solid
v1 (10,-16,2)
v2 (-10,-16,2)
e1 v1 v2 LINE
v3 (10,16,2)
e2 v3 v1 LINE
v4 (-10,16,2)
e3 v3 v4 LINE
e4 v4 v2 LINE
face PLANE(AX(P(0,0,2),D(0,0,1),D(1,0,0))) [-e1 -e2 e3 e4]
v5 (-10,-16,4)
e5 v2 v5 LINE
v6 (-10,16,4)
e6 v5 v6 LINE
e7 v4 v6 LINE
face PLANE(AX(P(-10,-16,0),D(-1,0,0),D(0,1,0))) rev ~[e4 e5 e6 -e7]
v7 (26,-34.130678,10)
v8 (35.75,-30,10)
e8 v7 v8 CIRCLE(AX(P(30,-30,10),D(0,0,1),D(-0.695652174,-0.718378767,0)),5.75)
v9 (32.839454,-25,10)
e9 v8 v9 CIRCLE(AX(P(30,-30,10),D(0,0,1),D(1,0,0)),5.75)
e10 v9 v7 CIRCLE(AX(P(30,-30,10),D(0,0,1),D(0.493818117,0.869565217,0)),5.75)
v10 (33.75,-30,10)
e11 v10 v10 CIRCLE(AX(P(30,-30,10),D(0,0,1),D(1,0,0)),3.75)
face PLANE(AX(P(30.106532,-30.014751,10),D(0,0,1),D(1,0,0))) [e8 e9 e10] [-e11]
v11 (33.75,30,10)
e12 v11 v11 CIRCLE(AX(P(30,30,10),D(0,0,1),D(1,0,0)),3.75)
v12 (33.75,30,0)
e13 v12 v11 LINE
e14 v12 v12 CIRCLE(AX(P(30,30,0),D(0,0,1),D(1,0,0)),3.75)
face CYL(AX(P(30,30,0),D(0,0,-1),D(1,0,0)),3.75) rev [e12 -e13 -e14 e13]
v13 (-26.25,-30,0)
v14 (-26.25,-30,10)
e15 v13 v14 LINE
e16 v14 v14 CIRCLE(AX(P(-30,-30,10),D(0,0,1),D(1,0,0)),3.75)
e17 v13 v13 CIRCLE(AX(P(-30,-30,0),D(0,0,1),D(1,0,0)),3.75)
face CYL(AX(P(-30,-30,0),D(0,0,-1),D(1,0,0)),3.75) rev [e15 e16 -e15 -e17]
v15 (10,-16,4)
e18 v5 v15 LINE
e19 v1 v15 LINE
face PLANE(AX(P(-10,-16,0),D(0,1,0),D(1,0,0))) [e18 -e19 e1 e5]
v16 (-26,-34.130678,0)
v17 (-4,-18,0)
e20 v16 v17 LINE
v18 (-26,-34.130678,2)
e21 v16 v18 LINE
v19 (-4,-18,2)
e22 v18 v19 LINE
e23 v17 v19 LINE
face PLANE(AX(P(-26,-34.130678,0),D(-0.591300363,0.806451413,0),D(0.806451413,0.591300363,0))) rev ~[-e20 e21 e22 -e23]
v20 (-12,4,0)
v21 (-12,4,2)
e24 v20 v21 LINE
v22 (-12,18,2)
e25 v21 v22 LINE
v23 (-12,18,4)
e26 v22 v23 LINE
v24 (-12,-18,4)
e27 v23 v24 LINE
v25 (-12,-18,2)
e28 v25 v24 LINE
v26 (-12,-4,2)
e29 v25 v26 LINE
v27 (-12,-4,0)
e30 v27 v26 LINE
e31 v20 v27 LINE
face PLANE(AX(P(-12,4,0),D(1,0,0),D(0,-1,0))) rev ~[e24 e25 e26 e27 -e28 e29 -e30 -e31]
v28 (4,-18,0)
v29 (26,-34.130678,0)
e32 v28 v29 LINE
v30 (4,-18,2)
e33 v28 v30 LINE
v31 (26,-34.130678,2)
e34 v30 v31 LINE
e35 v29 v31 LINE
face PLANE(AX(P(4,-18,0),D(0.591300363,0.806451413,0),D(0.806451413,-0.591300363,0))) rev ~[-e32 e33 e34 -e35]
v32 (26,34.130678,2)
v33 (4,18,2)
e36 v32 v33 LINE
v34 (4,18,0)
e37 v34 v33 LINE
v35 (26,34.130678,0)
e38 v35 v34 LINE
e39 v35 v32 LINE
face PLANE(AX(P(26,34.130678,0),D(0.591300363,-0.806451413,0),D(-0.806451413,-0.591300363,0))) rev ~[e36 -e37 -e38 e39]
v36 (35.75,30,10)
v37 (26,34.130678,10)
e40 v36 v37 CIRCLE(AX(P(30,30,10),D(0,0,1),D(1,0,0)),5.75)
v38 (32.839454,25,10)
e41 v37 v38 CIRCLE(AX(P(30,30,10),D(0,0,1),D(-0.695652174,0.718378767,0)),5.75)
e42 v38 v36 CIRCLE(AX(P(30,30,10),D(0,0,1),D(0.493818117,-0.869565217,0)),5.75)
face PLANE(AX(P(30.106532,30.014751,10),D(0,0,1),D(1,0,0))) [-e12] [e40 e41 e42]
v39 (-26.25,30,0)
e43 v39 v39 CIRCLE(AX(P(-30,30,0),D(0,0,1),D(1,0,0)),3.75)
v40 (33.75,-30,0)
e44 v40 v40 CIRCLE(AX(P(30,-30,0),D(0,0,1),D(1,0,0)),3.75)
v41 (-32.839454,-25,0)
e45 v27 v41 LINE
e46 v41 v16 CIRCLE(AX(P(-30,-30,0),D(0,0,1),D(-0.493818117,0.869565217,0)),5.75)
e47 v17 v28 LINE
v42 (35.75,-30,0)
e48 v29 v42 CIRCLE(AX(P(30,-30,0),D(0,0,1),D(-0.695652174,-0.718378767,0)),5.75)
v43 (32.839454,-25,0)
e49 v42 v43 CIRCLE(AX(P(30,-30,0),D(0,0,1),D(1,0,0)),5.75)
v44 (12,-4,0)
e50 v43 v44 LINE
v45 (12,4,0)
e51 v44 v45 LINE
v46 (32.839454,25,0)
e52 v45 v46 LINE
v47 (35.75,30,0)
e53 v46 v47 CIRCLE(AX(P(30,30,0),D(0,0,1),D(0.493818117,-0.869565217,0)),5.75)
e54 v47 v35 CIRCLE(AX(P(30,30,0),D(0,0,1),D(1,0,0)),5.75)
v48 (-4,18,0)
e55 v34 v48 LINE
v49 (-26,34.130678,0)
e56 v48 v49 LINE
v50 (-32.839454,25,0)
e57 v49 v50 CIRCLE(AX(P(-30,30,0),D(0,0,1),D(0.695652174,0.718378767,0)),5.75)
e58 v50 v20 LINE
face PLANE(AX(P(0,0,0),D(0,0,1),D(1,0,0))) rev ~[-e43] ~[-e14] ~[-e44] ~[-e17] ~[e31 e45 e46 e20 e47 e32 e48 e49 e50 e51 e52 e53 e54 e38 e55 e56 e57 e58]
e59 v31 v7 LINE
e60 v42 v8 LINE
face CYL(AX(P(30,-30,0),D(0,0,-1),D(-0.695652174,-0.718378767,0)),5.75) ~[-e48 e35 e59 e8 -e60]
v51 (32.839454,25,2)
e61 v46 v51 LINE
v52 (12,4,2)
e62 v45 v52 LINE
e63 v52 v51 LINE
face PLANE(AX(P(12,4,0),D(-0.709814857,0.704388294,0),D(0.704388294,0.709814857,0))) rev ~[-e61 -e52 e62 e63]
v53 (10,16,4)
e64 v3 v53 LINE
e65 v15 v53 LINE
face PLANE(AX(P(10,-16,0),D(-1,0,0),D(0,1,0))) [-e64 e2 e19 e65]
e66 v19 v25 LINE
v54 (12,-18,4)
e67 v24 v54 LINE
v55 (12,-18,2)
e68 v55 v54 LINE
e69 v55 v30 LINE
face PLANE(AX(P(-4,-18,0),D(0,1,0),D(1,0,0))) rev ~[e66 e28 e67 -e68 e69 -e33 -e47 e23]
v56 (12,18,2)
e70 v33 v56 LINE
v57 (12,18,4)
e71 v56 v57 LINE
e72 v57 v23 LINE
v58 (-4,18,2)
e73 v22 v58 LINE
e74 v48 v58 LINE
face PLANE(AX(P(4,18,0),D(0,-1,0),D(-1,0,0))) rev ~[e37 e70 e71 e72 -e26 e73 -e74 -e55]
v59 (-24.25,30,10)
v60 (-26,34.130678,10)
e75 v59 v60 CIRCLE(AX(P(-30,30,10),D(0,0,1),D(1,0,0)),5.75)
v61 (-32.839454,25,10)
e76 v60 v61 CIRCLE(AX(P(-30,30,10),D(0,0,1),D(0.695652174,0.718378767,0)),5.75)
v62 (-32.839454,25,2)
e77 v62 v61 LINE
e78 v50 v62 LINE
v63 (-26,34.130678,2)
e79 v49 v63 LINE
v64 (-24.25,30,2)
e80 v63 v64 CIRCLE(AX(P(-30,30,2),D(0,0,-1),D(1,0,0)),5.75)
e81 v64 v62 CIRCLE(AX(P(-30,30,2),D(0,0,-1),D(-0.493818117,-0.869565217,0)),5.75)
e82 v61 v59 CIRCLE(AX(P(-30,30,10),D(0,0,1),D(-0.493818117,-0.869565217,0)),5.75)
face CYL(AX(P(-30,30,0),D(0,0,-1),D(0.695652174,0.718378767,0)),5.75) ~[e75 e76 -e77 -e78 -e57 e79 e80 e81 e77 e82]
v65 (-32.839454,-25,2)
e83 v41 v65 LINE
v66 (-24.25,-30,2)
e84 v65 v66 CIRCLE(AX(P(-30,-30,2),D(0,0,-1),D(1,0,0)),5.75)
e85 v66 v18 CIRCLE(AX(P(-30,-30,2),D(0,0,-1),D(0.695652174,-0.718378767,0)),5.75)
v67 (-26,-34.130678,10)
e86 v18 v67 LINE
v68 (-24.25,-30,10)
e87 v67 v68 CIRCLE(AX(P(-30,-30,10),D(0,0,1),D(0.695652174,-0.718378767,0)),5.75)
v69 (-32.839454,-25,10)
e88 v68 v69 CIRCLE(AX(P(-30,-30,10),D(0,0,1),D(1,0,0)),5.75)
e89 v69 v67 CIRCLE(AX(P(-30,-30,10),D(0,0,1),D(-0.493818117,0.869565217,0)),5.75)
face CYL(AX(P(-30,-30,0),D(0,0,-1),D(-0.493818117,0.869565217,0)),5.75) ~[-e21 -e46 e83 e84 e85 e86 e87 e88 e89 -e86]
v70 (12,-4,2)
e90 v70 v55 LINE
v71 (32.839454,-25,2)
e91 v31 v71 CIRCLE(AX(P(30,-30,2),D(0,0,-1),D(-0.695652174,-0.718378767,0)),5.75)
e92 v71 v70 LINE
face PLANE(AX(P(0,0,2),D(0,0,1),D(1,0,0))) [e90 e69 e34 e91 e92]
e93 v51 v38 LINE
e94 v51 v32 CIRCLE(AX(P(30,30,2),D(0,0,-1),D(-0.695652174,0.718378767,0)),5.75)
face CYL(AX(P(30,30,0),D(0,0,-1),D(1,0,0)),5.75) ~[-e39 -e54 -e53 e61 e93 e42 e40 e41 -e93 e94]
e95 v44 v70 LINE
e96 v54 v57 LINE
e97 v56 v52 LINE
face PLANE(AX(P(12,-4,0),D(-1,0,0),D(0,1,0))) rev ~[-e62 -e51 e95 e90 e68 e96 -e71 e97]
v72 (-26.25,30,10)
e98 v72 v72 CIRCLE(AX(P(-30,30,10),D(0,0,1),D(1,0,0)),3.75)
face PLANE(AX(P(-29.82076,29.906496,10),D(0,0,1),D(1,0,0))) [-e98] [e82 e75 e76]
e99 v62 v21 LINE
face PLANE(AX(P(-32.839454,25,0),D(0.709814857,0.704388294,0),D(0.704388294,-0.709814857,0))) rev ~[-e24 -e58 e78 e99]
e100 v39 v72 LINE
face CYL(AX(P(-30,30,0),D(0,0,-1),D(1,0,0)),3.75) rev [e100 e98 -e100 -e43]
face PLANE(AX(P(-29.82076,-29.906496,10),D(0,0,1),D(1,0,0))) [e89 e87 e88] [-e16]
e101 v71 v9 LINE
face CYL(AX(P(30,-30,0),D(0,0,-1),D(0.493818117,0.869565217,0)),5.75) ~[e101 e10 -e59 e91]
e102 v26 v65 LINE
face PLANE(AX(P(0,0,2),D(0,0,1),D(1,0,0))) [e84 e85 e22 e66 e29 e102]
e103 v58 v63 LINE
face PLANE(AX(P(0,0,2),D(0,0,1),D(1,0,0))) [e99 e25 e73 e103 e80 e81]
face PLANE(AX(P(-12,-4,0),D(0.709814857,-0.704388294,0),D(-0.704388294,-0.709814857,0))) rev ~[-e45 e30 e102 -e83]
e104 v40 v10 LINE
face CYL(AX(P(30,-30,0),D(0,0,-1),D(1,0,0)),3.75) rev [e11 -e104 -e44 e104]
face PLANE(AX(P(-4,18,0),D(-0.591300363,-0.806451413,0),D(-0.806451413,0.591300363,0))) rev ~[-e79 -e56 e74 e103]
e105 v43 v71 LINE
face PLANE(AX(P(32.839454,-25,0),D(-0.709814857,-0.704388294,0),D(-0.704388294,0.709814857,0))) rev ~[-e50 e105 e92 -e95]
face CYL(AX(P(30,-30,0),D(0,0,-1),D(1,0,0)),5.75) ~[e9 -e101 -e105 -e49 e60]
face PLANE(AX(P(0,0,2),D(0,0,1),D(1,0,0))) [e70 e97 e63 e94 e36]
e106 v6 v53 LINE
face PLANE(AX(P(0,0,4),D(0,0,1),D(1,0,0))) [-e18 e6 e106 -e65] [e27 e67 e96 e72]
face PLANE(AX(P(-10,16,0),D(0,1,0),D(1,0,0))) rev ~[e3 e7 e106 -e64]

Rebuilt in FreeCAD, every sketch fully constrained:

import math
import FreeCAD as App
import Part
import Sketcher
Q = App.Units.Quantity

doc = App.newDocument("Part")
body = doc.addObject("PartDesign::Body", "Body")

# Sketch on XY plane
sketch1 = doc.addObject("Sketcher::SketchObject", "Sketch")
body.addObject(sketch1)
sketch1.AttachmentSupport = (doc.XY_Plane, [""])
sketch1.MapMode = "FlatFace"
sketch1.addGeometry([
    Part.LineSegment(App.Vector(4, 18, 0), App.Vector(-4, 18, 0)),  # 0
    Part.LineSegment(App.Vector(-4, 18, 0), App.Vector(-26, 34.1, 0)),  # 1
    Part.ArcOfCircle(Part.Circle(App.Vector(-30, 30, 0), App.Vector(0, 0, 1), 5.8), math.radians(46), math.radians(240)),  # 2
    Part.LineSegment(App.Vector(-32.8, 25, 0), App.Vector(-12, 4, 0)),  # 3
    Part.LineSegment(App.Vector(-12, 4, 0), App.Vector(-12, -4, 0)),  # 4
    Part.LineSegment(App.Vector(-12, -4, 0), App.Vector(-32.8, -25, 0)),  # 5
    Part.ArcOfCircle(Part.Circle(App.Vector(-30, -30, 0), App.Vector(0, 0, 1), 5.8), math.radians(120), math.radians(314)),  # 6
    Part.LineSegment(App.Vector(-26, -34.1, 0), App.Vector(-4, -18, 0)),  # 7
    Part.LineSegment(App.Vector(-4, -18, 0), App.Vector(4, -18, 0)),  # 8
    Part.LineSegment(App.Vector(4, -18, 0), App.Vector(26, -34.1, 0)),  # 9
    Part.ArcOfCircle(Part.Circle(App.Vector(30, -30, 0), App.Vector(0, 0, 1), 5.8), math.radians(60), math.radians(226)),  # 10
    Part.LineSegment(App.Vector(32.8, -25, 0), App.Vector(12, -4, 0)),  # 11
    Part.LineSegment(App.Vector(12, -4, 0), App.Vector(12, 4, 0)),  # 12
    Part.LineSegment(App.Vector(12, 4, 0), App.Vector(32.8, 25, 0)),  # 13
    Part.ArcOfCircle(Part.Circle(App.Vector(30, 30, 0), App.Vector(0, 0, 1), 5.8), math.radians(-60), math.radians(0)),  # 14
    Part.ArcOfCircle(Part.Circle(App.Vector(30, 30, 0), App.Vector(0, 0, 1), 5.8), math.radians(0), math.radians(134)),  # 15
    Part.LineSegment(App.Vector(26, 34.1, 0), App.Vector(4, 18, 0)),  # 16
    Part.Circle(App.Vector(-30, -30, 0), App.Vector(0, 0, 1), 3.8),  # 17
    Part.Circle(App.Vector(-30, 30, 0), App.Vector(0, 0, 1), 3.8),  # 18
    Part.Circle(App.Vector(30, 30, 0), App.Vector(0, 0, 1), 3.8),  # 19
], False)
sketch1.addConstraint([
    Sketcher.Constraint("Coincident", 0, 2, 1, 1),
    Sketcher.Constraint("Coincident", 1, 2, 2, 1),
    Sketcher.Constraint("Coincident", 2, 2, 3, 1),
    Sketcher.Constraint("Coincident", 3, 2, 4, 1),
    Sketcher.Constraint("Coincident", 4, 2, 5, 1),
    Sketcher.Constraint("Coincident", 5, 2, 6, 1),
    Sketcher.Constraint("Coincident", 6, 2, 7, 1),
    Sketcher.Constraint("Coincident", 7, 2, 8, 1),
    Sketcher.Constraint("Coincident", 8, 2, 9, 1),
    Sketcher.Constraint("Coincident", 9, 2, 10, 2),
    Sketcher.Constraint("Coincident", 10, 1, 11, 1),
    Sketcher.Constraint("Coincident", 11, 2, 12, 1),
    Sketcher.Constraint("Coincident", 12, 2, 13, 1),
    Sketcher.Constraint("Coincident", 13, 2, 14, 1),
    Sketcher.Constraint("Tangent", 14, 2, 15, 1),
    Sketcher.Constraint("Coincident", 15, 2, 16, 1),
    Sketcher.Constraint("Coincident", 16, 2, 0, 1),
    Sketcher.Constraint("Horizontal", 0),
    Sketcher.Constraint("Vertical", 4),
    Sketcher.Constraint("Horizontal", 8),
    Sketcher.Constraint("Vertical", 12),
    Sketcher.Constraint("Coincident", 17, 3, 6, 3),
    Sketcher.Constraint("Coincident", 18, 3, 2, 3),
    Sketcher.Constraint("Coincident", 19, 3, 14, 3),
    Sketcher.Constraint("Equal", 2, 6),
    Sketcher.Constraint("Equal", 6, 10),
    Sketcher.Constraint("Equal", 10, 14),
    Sketcher.Constraint("Equal", 14, 15),
    Sketcher.Constraint("Equal", 17, 18),
    Sketcher.Constraint("Equal", 18, 19),
    Sketcher.Constraint("Symmetric", 2, 3, 10, 3, -1, 1),
    Sketcher.Constraint("Symmetric", 6, 3, 14, 3, -1, 1),
    Sketcher.Constraint("Symmetric", 0, 2, 8, 2, -1, 1),
    Sketcher.Constraint("Symmetric", 3, 2, 11, 2, -1, 1),
    Sketcher.Constraint("Symmetric", 6, 3, 10, 3, -2),
    Sketcher.Constraint("Parallel", 1, 9),
    Sketcher.Constraint("Parallel", 3, 11),
    Sketcher.Constraint("Parallel", 5, 13),
    Sketcher.Constraint("Parallel", 7, 16),
    Sketcher.Constraint("Horizontal", 6, 2, 9, 2),
    Sketcher.Constraint("Horizontal", 5, 2, 10, 1),
    Sketcher.Constraint("Horizontal", 4, 2, 11, 2),
    Sketcher.Constraint("Horizontal", 3, 2, 12, 2),
    Sketcher.Constraint("Horizontal", 19, 3, 14, 2),
    Sketcher.Constraint("Horizontal", 1, 2, 15, 2),
    Sketcher.Constraint("Vertical", 0, 2, 7, 2),
    Sketcher.Constraint("Equal", 8, 4),
    Sketcher.Constraint("Diameter", 17, Q("7.5 mm")),
    Sketcher.Constraint("DistanceX", 0, 2, 0, 1, Q("8 mm")),
    Sketcher.Constraint("Radius", 2, Q("5.75 mm")),
    Sketcher.Constraint("DistanceX", 2, 3, -1, 1, Q("30 mm")),
    Sketcher.Constraint("DistanceY", -1, 1, 2, 3, Q("30 mm")),
    Sketcher.Constraint("DistanceY", -1, 1, 0, 2, Q("18 mm")),
    Sketcher.Constraint("DistanceX", 1, 2, -1, 1, Q("26 mm")),
    Sketcher.Constraint("DistanceY", -1, 1, 2, 2, Q("25 mm")),
    Sketcher.Constraint("DistanceX", 3, 2, -1, 1, Q("12 mm")),
])
pad1 = doc.addObject("PartDesign::Pad", "Pad")
body.addObject(pad1)
pad1.Profile = sketch1
pad1.Length = 2

# Sketch on XY plane
sketch2 = doc.addObject("Sketcher::SketchObject", "Sketch001")
body.addObject(sketch2)
sketch2.AttachmentSupport = (doc.XY_Plane, [""])
sketch2.MapMode = "FlatFace"
sketch2.addGeometry([
    Part.ArcOfCircle(Part.Circle(App.Vector(-30, 30, 0), App.Vector(0, 0, 1), 5.8), math.radians(0), math.radians(46)),  # 0
    Part.ArcOfCircle(Part.Circle(App.Vector(-30, 30, 0), App.Vector(0, 0, 1), 5.8), math.radians(46), math.radians(240)),  # 1
    Part.ArcOfCircle(Part.Circle(App.Vector(-30, 30, 0), App.Vector(0, 0, 1), 5.8), math.radians(-120), math.radians(0)),  # 2
    Part.Circle(App.Vector(-30, 30, 0), App.Vector(0, 0, 1), 3.8),  # 3
    Part.ArcOfCircle(Part.Circle(App.Vector(30, 30, 0), App.Vector(0, 0, 1), 5.8), math.radians(0), math.radians(134)),  # 4
    Part.ArcOfCircle(Part.Circle(App.Vector(30, 30, 0), App.Vector(0, 0, 1), 5.8), math.radians(134), math.radians(300)),  # 5
    Part.ArcOfCircle(Part.Circle(App.Vector(30, 30, 0), App.Vector(0, 0, 1), 5.8), math.radians(-60), math.radians(0)),  # 6
    Part.Circle(App.Vector(30, 30, 0), App.Vector(0, 0, 1), 3.8),  # 7
    Part.ArcOfCircle(Part.Circle(App.Vector(30, -30, 0), App.Vector(0, 0, 1), 5.8), math.radians(0), math.radians(60)),  # 8
    Part.ArcOfCircle(Part.Circle(App.Vector(30, -30, 0), App.Vector(0, 0, 1), 5.8), math.radians(60), math.radians(226)),  # 9
    Part.ArcOfCircle(Part.Circle(App.Vector(30, -30, 0), App.Vector(0, 0, 1), 5.8), math.radians(-134), math.radians(0)),  # 10
    Part.Circle(App.Vector(30, -30, 0), App.Vector(0, 0, 1), 3.8),  # 11
    Part.ArcOfCircle(Part.Circle(App.Vector(-30, -30, 0), App.Vector(0, 0, 1), 5.8), math.radians(0), math.radians(120)),  # 12
    Part.ArcOfCircle(Part.Circle(App.Vector(-30, -30, 0), App.Vector(0, 0, 1), 5.8), math.radians(120), math.radians(314)),  # 13
    Part.ArcOfCircle(Part.Circle(App.Vector(-30, -30, 0), App.Vector(0, 0, 1), 5.8), math.radians(-46), math.radians(0)),  # 14
    Part.Circle(App.Vector(-30, -30, 0), App.Vector(0, 0, 1), 3.8),  # 15
], False)
sketch2.addConstraint([
    Sketcher.Constraint("Tangent", 0, 2, 1, 1),
    Sketcher.Constraint("Tangent", 1, 2, 2, 1),
    Sketcher.Constraint("Tangent", 2, 2, 0, 1),
    Sketcher.Constraint("Tangent", 4, 2, 5, 1),
    Sketcher.Constraint("Tangent", 5, 2, 6, 1),
    Sketcher.Constraint("Tangent", 6, 2, 4, 1),
    Sketcher.Constraint("Tangent", 8, 2, 9, 1),
    Sketcher.Constraint("Tangent", 9, 2, 10, 1),
    Sketcher.Constraint("Tangent", 10, 2, 8, 1),
    Sketcher.Constraint("Tangent", 12, 2, 13, 1),
    Sketcher.Constraint("Tangent", 13, 2, 14, 1),
    Sketcher.Constraint("Tangent", 14, 2, 12, 1),
    Sketcher.Constraint("Coincident", 3, 3, 0, 3),
    Sketcher.Constraint("Coincident", 7, 3, 4, 3),
    Sketcher.Constraint("Coincident", 11, 3, 8, 3),
    Sketcher.Constraint("Coincident", 15, 3, 12, 3),
    Sketcher.Constraint("Equal", 2, 4),
    Sketcher.Constraint("Equal", 3, 7),
    Sketcher.Constraint("Equal", 6, 8),
    Sketcher.Constraint("Equal", 7, 11),
    Sketcher.Constraint("Equal", 10, 12),
    Sketcher.Constraint("Equal", 11, 15),
    Sketcher.Constraint("Symmetric", 0, 3, 8, 3, -1, 1),
    Sketcher.Constraint("Symmetric", 4, 3, 12, 3, -1, 1),
    Sketcher.Constraint("Symmetric", 0, 3, 4, 3, -2),
    Sketcher.Constraint("Horizontal", 7, 3, 2, 2),
    Sketcher.Constraint("Horizontal", 0, 2, 4, 2),
    Sketcher.Constraint("Horizontal", 1, 2, 5, 2),
    Sketcher.Constraint("Horizontal", 2, 2, 6, 2),
    Sketcher.Constraint("Horizontal", 15, 3, 10, 2),
    Sketcher.Constraint("Horizontal", 8, 2, 12, 2),
    Sketcher.Constraint("Horizontal", 9, 2, 13, 2),
    Sketcher.Constraint("Horizontal", 10, 2, 14, 2),
    Sketcher.Constraint("Vertical", 5, 2, 8, 2),
    Sketcher.Constraint("Vertical", 4, 2, 9, 2),
    Sketcher.Constraint("Diameter", 3, Q("7.5 mm")),
    Sketcher.Constraint("Radius", 0, Q("5.75 mm")),
    Sketcher.Constraint("DistanceX", 0, 3, -1, 1, Q("30 mm")),
    Sketcher.Constraint("DistanceY", -1, 1, 0, 3, Q("30 mm")),
    Sketcher.Constraint("DistanceX", 0, 2, -1, 1, Q("26 mm")),
    Sketcher.Constraint("DistanceY", -1, 1, 1, 2, Q("25 mm")),
])
pad2 = doc.addObject("PartDesign::Pad", "Pad001")
body.addObject(pad2)
pad2.Profile = sketch2
pad2.Length = 10

# Sketch on XY plane
sketch3 = doc.addObject("Sketcher::SketchObject", "Sketch002")
body.addObject(sketch3)
sketch3.AttachmentSupport = (doc.XY_Plane, [""])
sketch3.MapMode = "FlatFace"
sketch3.addGeometry([
    Part.LineSegment(App.Vector(12, 18, 0), App.Vector(-12, 18, 0)),  # 0
    Part.LineSegment(App.Vector(-12, 18, 0), App.Vector(-12, -18, 0)),  # 1
    Part.LineSegment(App.Vector(-12, -18, 0), App.Vector(12, -18, 0)),  # 2
    Part.LineSegment(App.Vector(12, -18, 0), App.Vector(12, 18, 0)),  # 3
    Part.LineSegment(App.Vector(10, -16, 0), App.Vector(-10, -16, 0)),  # 4
    Part.LineSegment(App.Vector(-10, -16, 0), App.Vector(-10, 16, 0)),  # 5
    Part.LineSegment(App.Vector(-10, 16, 0), App.Vector(10, 16, 0)),  # 6
    Part.LineSegment(App.Vector(10, 16, 0), App.Vector(10, -16, 0)),  # 7
], False)
sketch3.addConstraint([
    Sketcher.Constraint("Coincident", 0, 2, 1, 1),
    Sketcher.Constraint("Coincident", 1, 2, 2, 1),
    Sketcher.Constraint("Coincident", 2, 2, 3, 1),
    Sketcher.Constraint("Coincident", 3, 2, 0, 1),
    Sketcher.Constraint("Coincident", 4, 2, 5, 1),
    Sketcher.Constraint("Coincident", 5, 2, 6, 1),
    Sketcher.Constraint("Coincident", 6, 2, 7, 1),
    Sketcher.Constraint("Coincident", 7, 2, 4, 1),
    Sketcher.Constraint("Horizontal", 0),
    Sketcher.Constraint("Vertical", 1),
    Sketcher.Constraint("Horizontal", 2),
    Sketcher.Constraint("Vertical", 3),
    Sketcher.Constraint("Horizontal", 4),
    Sketcher.Constraint("Vertical", 5),
    Sketcher.Constraint("Horizontal", 6),
    Sketcher.Constraint("Vertical", 7),
    Sketcher.Constraint("Symmetric", 0, 2, 2, 2, -1, 1),
    Sketcher.Constraint("Symmetric", 4, 2, 6, 2, -1, 1),
    Sketcher.Constraint("DistanceX", 0, 2, 0, 1, Q("24 mm")),
    Sketcher.Constraint("DistanceX", 4, 2, 4, 1, Q("20 mm")),
    Sketcher.Constraint("DistanceY", 1, 2, 1, 1, Q("36 mm")),
    Sketcher.Constraint("DistanceY", 5, 1, 5, 2, Q("32 mm")),
])
pad3 = doc.addObject("PartDesign::Pad", "Pad002")
body.addObject(pad3)
pad3.Profile = sketch3
pad3.Length = 4

doc.recompute()
